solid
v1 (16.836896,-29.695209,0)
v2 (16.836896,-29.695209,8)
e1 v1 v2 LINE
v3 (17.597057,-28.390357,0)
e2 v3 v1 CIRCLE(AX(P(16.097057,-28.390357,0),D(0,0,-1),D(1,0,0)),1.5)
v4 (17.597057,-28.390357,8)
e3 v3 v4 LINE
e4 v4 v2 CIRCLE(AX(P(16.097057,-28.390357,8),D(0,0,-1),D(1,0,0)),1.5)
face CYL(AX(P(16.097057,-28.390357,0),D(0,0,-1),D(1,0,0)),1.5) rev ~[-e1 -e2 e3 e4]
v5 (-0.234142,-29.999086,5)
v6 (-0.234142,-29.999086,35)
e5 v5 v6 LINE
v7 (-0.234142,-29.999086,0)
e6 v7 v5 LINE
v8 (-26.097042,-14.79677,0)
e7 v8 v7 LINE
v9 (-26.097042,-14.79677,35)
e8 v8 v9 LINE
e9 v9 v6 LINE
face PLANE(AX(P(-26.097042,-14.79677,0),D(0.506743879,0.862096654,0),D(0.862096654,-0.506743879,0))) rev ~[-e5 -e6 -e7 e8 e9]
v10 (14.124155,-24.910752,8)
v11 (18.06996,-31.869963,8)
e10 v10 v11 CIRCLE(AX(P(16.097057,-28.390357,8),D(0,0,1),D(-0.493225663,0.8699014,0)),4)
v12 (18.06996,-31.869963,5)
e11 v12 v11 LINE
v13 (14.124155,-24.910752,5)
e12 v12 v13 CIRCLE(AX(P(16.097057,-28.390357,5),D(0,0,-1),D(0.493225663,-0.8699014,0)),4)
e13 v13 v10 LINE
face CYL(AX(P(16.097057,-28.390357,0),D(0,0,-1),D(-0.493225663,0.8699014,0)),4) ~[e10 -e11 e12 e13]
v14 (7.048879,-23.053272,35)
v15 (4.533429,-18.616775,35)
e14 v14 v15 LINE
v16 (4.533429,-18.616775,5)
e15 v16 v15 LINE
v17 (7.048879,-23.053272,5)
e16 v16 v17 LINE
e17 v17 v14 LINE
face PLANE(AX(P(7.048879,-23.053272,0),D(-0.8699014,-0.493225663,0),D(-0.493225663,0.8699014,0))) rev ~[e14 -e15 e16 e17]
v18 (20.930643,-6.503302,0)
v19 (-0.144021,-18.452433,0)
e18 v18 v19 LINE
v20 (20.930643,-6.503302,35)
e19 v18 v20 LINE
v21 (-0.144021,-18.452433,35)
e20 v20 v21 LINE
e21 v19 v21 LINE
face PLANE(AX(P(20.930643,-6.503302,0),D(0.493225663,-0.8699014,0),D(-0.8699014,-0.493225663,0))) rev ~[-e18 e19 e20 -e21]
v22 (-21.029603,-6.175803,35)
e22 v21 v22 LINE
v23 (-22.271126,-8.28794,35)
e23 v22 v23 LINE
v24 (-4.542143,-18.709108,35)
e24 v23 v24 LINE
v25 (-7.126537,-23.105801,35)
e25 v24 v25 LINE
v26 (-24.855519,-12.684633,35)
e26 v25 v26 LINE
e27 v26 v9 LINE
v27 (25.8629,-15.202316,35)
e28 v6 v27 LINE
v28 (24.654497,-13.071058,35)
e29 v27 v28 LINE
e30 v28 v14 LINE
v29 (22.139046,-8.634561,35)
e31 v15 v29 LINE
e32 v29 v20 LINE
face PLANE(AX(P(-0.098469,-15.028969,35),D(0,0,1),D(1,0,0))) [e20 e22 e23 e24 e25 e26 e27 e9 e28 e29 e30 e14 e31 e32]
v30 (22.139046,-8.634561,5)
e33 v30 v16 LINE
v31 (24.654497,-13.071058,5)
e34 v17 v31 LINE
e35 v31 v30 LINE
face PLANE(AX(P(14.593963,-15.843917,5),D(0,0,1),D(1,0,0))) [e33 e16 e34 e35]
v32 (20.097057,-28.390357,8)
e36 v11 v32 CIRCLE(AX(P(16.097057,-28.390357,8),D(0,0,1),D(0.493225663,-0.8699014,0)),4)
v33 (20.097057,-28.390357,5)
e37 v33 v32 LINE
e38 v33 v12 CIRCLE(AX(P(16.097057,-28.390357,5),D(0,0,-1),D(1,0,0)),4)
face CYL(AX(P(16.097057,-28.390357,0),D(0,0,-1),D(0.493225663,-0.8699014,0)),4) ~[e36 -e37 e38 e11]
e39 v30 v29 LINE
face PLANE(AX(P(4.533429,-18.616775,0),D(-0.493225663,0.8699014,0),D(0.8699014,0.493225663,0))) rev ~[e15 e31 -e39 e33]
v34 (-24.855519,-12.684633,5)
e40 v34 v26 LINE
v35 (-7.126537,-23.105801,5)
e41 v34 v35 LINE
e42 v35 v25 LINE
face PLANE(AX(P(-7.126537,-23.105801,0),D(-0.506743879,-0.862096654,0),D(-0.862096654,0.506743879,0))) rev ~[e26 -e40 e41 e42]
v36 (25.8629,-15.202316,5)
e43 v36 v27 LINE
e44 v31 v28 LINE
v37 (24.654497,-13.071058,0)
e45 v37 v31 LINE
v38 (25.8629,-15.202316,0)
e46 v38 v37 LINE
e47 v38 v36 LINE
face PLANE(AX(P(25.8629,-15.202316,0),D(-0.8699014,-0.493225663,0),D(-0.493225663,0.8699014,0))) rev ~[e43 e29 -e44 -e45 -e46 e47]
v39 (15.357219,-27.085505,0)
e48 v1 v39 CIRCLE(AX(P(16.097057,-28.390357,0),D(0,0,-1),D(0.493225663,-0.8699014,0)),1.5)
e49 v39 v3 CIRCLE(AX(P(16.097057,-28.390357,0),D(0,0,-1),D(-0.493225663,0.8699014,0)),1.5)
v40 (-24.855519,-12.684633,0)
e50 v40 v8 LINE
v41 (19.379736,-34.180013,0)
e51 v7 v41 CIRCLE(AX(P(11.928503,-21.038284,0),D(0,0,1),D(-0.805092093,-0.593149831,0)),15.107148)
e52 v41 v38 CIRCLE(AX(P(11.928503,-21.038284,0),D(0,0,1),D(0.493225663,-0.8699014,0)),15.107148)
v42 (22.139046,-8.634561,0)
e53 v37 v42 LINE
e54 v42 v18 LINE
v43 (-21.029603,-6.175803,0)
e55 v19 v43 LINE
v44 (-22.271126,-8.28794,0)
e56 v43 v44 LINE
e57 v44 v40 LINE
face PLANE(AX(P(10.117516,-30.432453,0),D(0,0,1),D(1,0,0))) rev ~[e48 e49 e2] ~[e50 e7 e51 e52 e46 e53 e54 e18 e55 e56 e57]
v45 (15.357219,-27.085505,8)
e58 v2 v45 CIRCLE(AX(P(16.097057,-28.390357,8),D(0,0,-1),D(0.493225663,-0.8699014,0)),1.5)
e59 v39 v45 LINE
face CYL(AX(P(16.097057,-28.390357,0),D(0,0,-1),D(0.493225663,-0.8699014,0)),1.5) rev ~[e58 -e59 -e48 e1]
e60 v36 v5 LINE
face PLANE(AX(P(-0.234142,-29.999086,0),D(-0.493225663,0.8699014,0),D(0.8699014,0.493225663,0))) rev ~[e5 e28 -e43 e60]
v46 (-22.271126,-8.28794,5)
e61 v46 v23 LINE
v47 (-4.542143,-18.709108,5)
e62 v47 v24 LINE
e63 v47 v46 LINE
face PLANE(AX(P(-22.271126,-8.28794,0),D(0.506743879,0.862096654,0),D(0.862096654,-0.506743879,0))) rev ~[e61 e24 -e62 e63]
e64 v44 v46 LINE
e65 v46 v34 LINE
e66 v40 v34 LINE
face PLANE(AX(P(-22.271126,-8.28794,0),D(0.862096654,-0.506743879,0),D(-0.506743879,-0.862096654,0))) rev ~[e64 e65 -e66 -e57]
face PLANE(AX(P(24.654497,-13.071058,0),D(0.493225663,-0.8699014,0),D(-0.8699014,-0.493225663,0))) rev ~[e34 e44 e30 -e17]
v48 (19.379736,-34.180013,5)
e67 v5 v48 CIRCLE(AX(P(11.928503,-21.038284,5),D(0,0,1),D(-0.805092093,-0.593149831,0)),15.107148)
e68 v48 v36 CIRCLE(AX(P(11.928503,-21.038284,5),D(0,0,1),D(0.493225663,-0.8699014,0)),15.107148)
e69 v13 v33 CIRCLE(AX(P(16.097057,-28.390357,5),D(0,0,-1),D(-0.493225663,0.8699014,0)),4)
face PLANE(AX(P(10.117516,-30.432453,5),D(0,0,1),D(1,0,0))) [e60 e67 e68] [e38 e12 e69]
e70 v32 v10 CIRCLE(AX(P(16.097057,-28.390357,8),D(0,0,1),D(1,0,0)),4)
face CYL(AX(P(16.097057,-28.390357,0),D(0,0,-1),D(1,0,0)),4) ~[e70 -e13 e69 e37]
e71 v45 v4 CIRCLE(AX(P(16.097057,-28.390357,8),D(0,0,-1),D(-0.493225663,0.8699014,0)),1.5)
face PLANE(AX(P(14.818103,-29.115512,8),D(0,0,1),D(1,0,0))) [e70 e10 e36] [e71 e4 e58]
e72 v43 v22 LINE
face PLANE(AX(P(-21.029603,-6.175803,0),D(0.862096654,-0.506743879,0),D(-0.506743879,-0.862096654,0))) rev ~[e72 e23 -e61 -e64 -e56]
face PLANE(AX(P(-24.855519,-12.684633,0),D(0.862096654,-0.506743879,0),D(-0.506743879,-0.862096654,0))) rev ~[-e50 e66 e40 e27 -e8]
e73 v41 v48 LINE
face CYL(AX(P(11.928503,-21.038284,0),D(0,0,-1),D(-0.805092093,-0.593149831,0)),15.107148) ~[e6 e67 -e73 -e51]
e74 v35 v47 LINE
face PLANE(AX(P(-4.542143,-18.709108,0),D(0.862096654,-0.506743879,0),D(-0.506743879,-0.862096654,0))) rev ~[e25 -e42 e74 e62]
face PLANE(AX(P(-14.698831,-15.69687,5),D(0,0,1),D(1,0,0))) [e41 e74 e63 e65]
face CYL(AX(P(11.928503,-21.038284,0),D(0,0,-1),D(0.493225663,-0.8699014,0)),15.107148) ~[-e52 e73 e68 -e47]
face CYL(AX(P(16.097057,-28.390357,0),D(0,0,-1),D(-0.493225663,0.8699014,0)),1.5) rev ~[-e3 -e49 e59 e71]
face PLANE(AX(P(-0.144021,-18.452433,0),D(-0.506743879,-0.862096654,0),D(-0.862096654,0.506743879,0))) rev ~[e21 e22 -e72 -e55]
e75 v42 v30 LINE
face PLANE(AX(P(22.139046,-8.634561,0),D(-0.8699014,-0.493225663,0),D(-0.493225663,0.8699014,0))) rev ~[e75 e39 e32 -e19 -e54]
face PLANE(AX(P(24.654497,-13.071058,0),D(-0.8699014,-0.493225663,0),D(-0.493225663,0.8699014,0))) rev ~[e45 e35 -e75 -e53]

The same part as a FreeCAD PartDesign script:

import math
import FreeCAD as App
import Part
import Sketcher

doc = App.newDocument("Part")
body = doc.addObject("PartDesign::Body", "Body")

sketch1 = body.newObject("Sketcher::SketchObject", "Sketch")
sketch1.AttachmentSupport = (doc.getObject("XY_Plane"), [""])
sketch1.MapMode = "FlatFace"
sketch1.addGeometry([
    Part.LineSegment(App.Vector(-4.5, -18.7, 0), App.Vector(-7.1, -23.1, 0)),
    Part.LineSegment(App.Vector(-7.1, -23.1, 0), App.Vector(-24.9, -12.7, 0)),
    Part.LineSegment(App.Vector(-24.9, -12.7, 0), App.Vector(-26.1, -14.8, 0)),
    Part.LineSegment(App.Vector(-26.1, -14.8, 0), App.Vector(-0.2, -30, 0)),
    Part.LineSegment(App.Vector(-0.2, -30, 0), App.Vector(25.9, -15.2, 0)),
    Part.LineSegment(App.Vector(25.9, -15.2, 0), App.Vector(24.7, -13.1, 0)),
    Part.LineSegment(App.Vector(24.7, -13.1, 0), App.Vector(7, -23.1, 0)),
    Part.LineSegment(App.Vector(7, -23.1, 0), App.Vector(4.5, -18.6, 0)),
    Part.LineSegment(App.Vector(4.5, -18.6, 0), App.Vector(22.1, -8.6, 0)),
    Part.LineSegment(App.Vector(22.1, -8.6, 0), App.Vector(20.9, -6.5, 0)),
    Part.LineSegment(App.Vector(20.9, -6.5, 0), App.Vector(-0.1, -18.5, 0)),
    Part.LineSegment(App.Vector(-0.1, -18.5, 0), App.Vector(-21, -6.2, 0)),
    Part.LineSegment(App.Vector(-21, -6.2, 0), App.Vector(-22.3, -8.3, 0)),
    Part.LineSegment(App.Vector(-22.3, -8.3, 0), App.Vector(-4.5, -18.7, 0)),
], False)
sketch1.addConstraint([
    Sketcher.Constraint("Coincident", 0, 2, 1, 1),
    Sketcher.Constraint("Coincident", 1, 2, 2, 1),
    Sketcher.Constraint("Coincident", 2, 2, 3, 1),
    Sketcher.Constraint("Coincident", 3, 2, 4, 1),
    Sketcher.Constraint("Coincident", 4, 2, 5, 1),
    Sketcher.Constraint("Coincident", 5, 2, 6, 1),
    Sketcher.Constraint("Coincident", 6, 2, 7, 1),
    Sketcher.Constraint("Coincident", 7, 2, 8, 1),
    Sketcher.Constraint("Coincident", 8, 2, 9, 1),
    Sketcher.Constraint("Coincident", 9, 2, 10, 1),
    Sketcher.Constraint("Coincident", 10, 2, 11, 1),
    Sketcher.Constraint("Coincident", 11, 2, 12, 1),
    Sketcher.Constraint("Coincident", 12, 2, 13, 1),
    Sketcher.Constraint("Coincident", 13, 2, 0, 1),
    Sketcher.Constraint("Perpendicular", 0, 1),
    Sketcher.Constraint("Perpendicular", 1, 2),
    Sketcher.Constraint("Perpendicular", 2, 3),
    Sketcher.Constraint("Perpendicular", 4, 5),
    Sketcher.Constraint("Perpendicular", 5, 6),
    Sketcher.Constraint("Perpendicular", 6, 7),
    Sketcher.Constraint("Perpendicular", 7, 8),
    Sketcher.Constraint("Perpendicular", 8, 9),
    Sketcher.Constraint("Perpendicular", 9, 10),
    Sketcher.Constraint("Parallel", 3, 11),
    Sketcher.Constraint("Perpendicular", 11, 12),
    Sketcher.Constraint("Perpendicular", 12, 13),
    Sketcher.Constraint("Equal", 3, 4),
    Sketcher.Constraint("Equal", 2, 5),
    Sketcher.Constraint("Equal", 0, 7),
    Sketcher.Constraint("Equal", 6, 8),
    Sketcher.Constraint("Equal", 5, 9),
    Sketcher.Constraint("Equal", 10, 11),
    Sketcher.Constraint("Equal", 9, 12),
    Sketcher.Constraint("Distance", 3, 30.0),
    Sketcher.Constraint("Distance", 0, 5.1),
    Sketcher.Constraint("Distance", 2, 2.45),
    Sketcher.Constraint("DistanceX", 13, 2, 3, 2, 4.308),
    Sketcher.Constraint("DistanceY", 0, 2, -1, 1, 23.105801),
    Sketcher.Constraint("DistanceX", -1, 1, 4, 2, 25.8629),
    Sketcher.Constraint("DistanceX", 2, 2, 3, 2, 25.8629),
    Sketcher.Constraint("DistanceX", 1, 2, 6, 2, 31.904399),
    Sketcher.Constraint("DistanceX", 10, 2, 6, 2, 7.1929),
])
pad1 = body.newObject("PartDesign::Pad", "Pad")
pad1.Profile = sketch1
pad1.Length = 35

sketch2 = body.newObject("Sketcher::SketchObject", "Sketch001")
sketch2.AttachmentSupport = (doc.getObject("XY_Plane"), [""])
sketch2.MapMode = "FlatFace"
sketch2.addGeometry([
    Part.LineSegment(App.Vector(-22, -8, 0), App.Vector(-25, -13, 0)),
    Part.LineSegment(App.Vector(-25, -13, 0), App.Vector(-7, -23, 0)),
    Part.LineSegment(App.Vector(-7, -23, 0), App.Vector(-5, -19, 0)),
    Part.LineSegment(App.Vector(-5, -19, 0), App.Vector(-22, -8, 0)),
    Part.LineSegment(App.Vector(7, -23, 0), App.Vector(25, -13, 0)),
    Part.LineSegment(App.Vector(25, -13, 0), App.Vector(22, -9, 0)),
    Part.LineSegment(App.Vector(22, -9, 0), App.Vector(5, -19, 0)),
    Part.LineSegment(App.Vector(5, -19, 0), App.Vector(7, -23, 0)),
], False)
sketch2.addConstraint([
    Sketcher.Constraint("Coincident", 0, 2, 1, 1),
    Sketcher.Constraint("Coincident", 1, 2, 2, 1),
    Sketcher.Constraint("Coincident", 2, 2, 3, 1),
    Sketcher.Constraint("Coincident", 3, 2, 0, 1),
    Sketcher.Constraint("Coincident", 4, 2, 5, 1),
    Sketcher.Constraint("Coincident", 5, 2, 6, 1),
    Sketcher.Constraint("Coincident", 6, 2, 7, 1),
    Sketcher.Constraint("Coincident", 7, 2, 4, 1),
    Sketcher.Constraint("Perpendicular", 0, 1),
    Sketcher.Constraint("Perpendicular", 1, 2),
    Sketcher.Constraint("Perpendicular", 2, 3),
    Sketcher.Constraint("Perpendicular", 4, 5),
    Sketcher.Constraint("Perpendicular", 5, 6),
    Sketcher.Constraint("Perpendicular", 6, 7),
    Sketcher.Constraint("Equal", 2, 5),
    Sketcher.Constraint("Distance", 0, 5.1),
    Sketcher.Constraint("DistanceY", 1, 2, -1, 1, 23.105801),
    Sketcher.Constraint("Distance", 1, 20.56496),
    Sketcher.Constraint("DistanceX", 0, 2, -1, 1, 24.855519),
    Sketcher.Constraint("DistanceY", 3, 2, -1, 1, 8.28794),
    Sketcher.Constraint("DistanceY", 5, 2, -1, 1, 8.634561),
    Sketcher.Constraint("DistanceX", -1, 1, 6, 2, 4.533429),
    Sketcher.Constraint("DistanceX", -1, 1, 7, 2, 7.048879),
    Sketcher.Constraint("DistanceX", 2, 2, 4, 2, 29.196639),
])
pad2 = body.newObject("PartDesign::Pad", "Pad001")
pad2.Profile = sketch2
pad2.Length = 5

sketch3 = body.newObject("Sketcher::SketchObject", "Sketch002")
sketch3.AttachmentSupport = (doc.getObject("XY_Plane"), [""])
sketch3.MapMode = "FlatFace"
sketch3.addGeometry([
    Part.ArcOfCircle(Part.Circle(App.Vector(11.9, -21, 0), App.Vector(0, 0, 1), 15.1), math.radians(-144), math.radians(-60)),
    Part.ArcOfCircle(Part.Circle(App.Vector(11.9, -21, 0), App.Vector(0, 0, 1), 15.1), math.radians(-60), math.radians(23)),
    Part.LineSegment(App.Vector(25.9, -15.2, 0), App.Vector(-0.2, -30, 0)),
    Part.ArcOfCircle(Part.Circle(App.Vector(16.1, -28.4, 0), App.Vector(0, 0, 1), 4), math.radians(120), math.radians(300)),
    Part.ArcOfCircle(Part.Circle(App.Vector(16.1, -28.4, 0), App.Vector(0, 0, 1), 4), math.radians(0), math.radians(120)),
    Part.ArcOfCircle(Part.Circle(App.Vector(16.1, -28.4, 0), App.Vector(0, 0, 1), 4), math.radians(-60), math.radians(0)),
], False)
sketch3.addConstraint([
    Sketcher.Constraint("Tangent", 0, 2, 1, 1),
    Sketcher.Constraint("Coincident", 1, 2, 2, 1),
    Sketcher.Constraint("Coincident", 2, 2, 0, 1),
    Sketcher.Constraint("Tangent", 3, 1, 4, 2),
    Sketcher.Constraint("Tangent", 4, 1, 5, 2),
    Sketcher.Constraint("Tangent", 5, 1, 3, 2),
    Sketcher.Constraint("Equal", 0, 1),
    Sketcher.Constraint("Horizontal", 5, 3, 4, 1),
    Sketcher.Constraint("Radius", 3, 4.0),
    Sketcher.Constraint("Distance", 2, 30.0),
    Sketcher.Constraint("Radius", 0, 15.107148),
    Sketcher.Constraint("DistanceX", -1, 1, 1, 2, 25.8629),
    Sketcher.Constraint("DistanceX", 2, 2, 3, 3, 16.3312),
    Sketcher.Constraint("DistanceY", 3, 1, -1, 1, 24.910752),
    Sketcher.Constraint("DistanceX", -1, 1, 5, 1, 18.06996),
    Sketcher.Constraint("DistanceX", 3, 3, 0, 2, 3.282679),
    Sketcher.Constraint("DistanceY", 0, 2, 0, 3, 13.141729),
    Sketcher.Constraint("DistanceY", 3, 3, 1, 2, 13.188041),
    Sketcher.Constraint("DistanceX", 0, 3, 3, 1, 2.195652),
])
pad3 = body.newObject("PartDesign::Pad", "Pad002")
pad3.Profile = sketch3
pad3.Length = 5

sketch4 = body.newObject("Sketcher::SketchObject", "Sketch003")
sketch4.AttachmentSupport = (doc.getObject("XY_Plane"), [""])
sketch4.MapMode = "FlatFace"
sketch4.addGeometry([
    Part.ArcOfCircle(Part.Circle(App.Vector(16.1, -28.4, 0), App.Vector(0, 0, 1), 4), math.radians(120), math.radians(300)),
    Part.ArcOfCircle(Part.Circle(App.Vector(16.1, -28.4, 0), App.Vector(0, 0, 1), 4), math.radians(-60), math.radians(0)),
    Part.ArcOfCircle(Part.Circle(App.Vector(16.1, -28.4, 0), App.Vector(0, 0, 1), 4), math.radians(0), math.radians(120)),
    Part.ArcOfCircle(Part.Circle(App.Vector(16.1, -28.4, 0), App.Vector(0, 0, 1), 1.5), math.radians(120), math.radians(300)),
    Part.ArcOfCircle(Part.Circle(App.Vector(16.1, -28.4, 0), App.Vector(0, 0, 1), 1.5), math.radians(0), math.radians(120)),
    Part.ArcOfCircle(Part.Circle(App.Vector(16.1, -28.4, 0), App.Vector(0, 0, 1), 1.5), math.radians(-60), math.radians(0)),
], False)
sketch4.addConstraint([
    Sketcher.Constraint("Tangent", 0, 2, 1, 1),
    Sketcher.Constraint("Tangent", 1, 2, 2, 1),
    Sketcher.Constraint("Tangent", 2, 2, 0, 1),
    Sketcher.Constraint("Tangent", 3, 1, 4, 2),
    Sketcher.Constraint("Tangent", 4, 1, 5, 2),
    Sketcher.Constraint("Tangent", 5, 1, 3, 2),
    Sketcher.Constraint("Coincident", 3, 3, 0, 3),
    Sketcher.Constraint("Horizontal", 5, 3, 1, 2),
    Sketcher.Constraint("Horizontal", 1, 2, 4, 1),
    Sketcher.Constraint("Radius", 0, 4.0),
    Sketcher.Constraint("Radius", 3, 1.5),
    Sketcher.Constraint("DistanceX", -1, 1, 0, 2, 18.06996),
    Sketcher.Constraint("DistanceY", 2, 2, -1, 1, 24.910752),
    Sketcher.Constraint("DistanceX", -1, 1, 3, 1, 15.357219),
    Sketcher.Constraint("DistanceY", 5, 1, -1, 1, 29.695209),
    Sketcher.Constraint("DistanceX", 3, 1, 0, 3, 0.739838),
    Sketcher.Constraint("DistanceX", 0, 3, 5, 1, 0.739838),
])
pad4 = body.newObject("PartDesign::Pad", "Pad003")
pad4.Profile = sketch4
pad4.Length = 8

doc.recompute()
